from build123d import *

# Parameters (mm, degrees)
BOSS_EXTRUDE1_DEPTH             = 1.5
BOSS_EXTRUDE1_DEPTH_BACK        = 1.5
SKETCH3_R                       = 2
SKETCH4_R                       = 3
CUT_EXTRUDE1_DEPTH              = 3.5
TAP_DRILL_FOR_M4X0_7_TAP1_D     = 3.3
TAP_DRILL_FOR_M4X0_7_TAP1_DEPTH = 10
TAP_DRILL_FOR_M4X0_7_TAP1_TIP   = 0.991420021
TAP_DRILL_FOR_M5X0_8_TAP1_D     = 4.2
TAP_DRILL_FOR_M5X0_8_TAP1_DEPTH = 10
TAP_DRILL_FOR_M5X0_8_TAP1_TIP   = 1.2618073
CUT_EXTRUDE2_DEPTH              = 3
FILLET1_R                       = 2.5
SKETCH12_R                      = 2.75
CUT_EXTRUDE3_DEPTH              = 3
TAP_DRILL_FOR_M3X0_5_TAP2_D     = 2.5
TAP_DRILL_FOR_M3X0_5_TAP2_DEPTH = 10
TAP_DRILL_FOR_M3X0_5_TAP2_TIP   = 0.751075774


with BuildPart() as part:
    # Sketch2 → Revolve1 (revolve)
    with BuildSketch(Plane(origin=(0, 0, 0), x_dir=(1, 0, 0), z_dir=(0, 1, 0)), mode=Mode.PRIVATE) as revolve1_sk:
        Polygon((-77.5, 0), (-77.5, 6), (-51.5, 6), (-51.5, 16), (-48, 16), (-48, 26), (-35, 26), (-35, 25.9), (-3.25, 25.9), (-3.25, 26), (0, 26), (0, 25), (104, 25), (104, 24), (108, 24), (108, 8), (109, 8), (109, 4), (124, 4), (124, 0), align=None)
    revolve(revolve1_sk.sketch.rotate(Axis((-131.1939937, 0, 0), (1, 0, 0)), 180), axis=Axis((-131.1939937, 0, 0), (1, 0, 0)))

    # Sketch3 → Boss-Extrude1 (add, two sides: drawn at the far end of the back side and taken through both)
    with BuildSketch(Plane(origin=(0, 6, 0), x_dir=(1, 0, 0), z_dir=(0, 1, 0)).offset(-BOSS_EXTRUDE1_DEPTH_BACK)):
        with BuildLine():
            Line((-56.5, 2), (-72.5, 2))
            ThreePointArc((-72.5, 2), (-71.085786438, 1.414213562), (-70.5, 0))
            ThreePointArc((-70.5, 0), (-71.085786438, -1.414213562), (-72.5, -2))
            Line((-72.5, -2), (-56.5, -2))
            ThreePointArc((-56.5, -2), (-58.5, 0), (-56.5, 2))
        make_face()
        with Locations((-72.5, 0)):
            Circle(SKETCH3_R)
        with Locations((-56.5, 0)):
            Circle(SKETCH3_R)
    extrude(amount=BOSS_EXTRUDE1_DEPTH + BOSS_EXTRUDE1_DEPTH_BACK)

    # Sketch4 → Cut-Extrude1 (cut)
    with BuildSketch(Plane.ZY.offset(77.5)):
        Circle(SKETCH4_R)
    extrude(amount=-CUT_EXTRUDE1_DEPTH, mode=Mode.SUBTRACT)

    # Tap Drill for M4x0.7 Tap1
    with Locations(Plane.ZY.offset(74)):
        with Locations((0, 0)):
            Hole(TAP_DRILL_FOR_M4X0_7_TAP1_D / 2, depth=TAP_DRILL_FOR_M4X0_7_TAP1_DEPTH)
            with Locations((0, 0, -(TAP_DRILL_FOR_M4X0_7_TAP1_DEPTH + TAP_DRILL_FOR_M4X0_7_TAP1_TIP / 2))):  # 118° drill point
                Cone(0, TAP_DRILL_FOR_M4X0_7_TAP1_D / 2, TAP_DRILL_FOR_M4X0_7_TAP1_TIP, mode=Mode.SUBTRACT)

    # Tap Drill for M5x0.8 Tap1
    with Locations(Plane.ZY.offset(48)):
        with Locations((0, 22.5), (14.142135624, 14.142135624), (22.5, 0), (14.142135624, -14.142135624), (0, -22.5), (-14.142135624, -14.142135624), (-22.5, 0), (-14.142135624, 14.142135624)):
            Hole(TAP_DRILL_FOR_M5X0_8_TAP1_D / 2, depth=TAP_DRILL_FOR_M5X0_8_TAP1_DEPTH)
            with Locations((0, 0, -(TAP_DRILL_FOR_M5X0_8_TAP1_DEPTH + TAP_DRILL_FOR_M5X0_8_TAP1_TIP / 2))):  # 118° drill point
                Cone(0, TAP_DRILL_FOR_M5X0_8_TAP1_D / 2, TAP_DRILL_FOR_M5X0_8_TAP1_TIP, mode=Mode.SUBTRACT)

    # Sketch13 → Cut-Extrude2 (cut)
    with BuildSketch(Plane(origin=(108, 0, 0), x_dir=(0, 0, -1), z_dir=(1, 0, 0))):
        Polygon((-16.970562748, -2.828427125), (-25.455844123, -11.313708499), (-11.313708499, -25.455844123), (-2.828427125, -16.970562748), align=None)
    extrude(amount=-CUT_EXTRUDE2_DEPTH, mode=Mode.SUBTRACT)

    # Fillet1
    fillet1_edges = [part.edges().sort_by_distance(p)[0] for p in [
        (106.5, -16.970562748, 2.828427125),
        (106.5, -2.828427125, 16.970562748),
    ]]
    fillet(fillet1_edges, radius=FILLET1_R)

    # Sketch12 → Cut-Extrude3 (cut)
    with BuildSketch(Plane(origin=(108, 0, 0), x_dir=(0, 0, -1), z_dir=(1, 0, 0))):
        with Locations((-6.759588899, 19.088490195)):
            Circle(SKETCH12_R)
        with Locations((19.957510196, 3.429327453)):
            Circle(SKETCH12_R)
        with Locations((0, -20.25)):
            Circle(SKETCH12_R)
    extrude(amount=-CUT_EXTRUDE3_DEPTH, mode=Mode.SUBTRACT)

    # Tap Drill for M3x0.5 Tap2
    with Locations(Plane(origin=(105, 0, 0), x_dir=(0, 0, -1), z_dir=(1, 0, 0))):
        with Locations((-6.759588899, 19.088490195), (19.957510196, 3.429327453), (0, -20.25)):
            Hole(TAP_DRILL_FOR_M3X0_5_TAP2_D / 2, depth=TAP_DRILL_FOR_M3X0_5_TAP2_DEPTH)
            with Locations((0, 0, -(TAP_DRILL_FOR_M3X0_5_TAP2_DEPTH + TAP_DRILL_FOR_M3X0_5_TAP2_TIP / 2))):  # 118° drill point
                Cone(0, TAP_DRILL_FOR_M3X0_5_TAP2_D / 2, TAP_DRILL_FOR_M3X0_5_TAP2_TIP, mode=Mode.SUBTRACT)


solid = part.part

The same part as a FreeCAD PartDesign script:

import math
import FreeCAD as App
import Part
import Sketcher
Q = App.Units.Quantity


def edges_at(feature, points):
    """Names of the edges that pass closest to the given points."""
    edges = feature.Shape.Edges
    near = lambda p: min(range(len(edges)), key=lambda i: edges[i].distToShape(Part.Vertex(*p))[0])
    return sorted({f"Edge{near(p) + 1}" for p in points})

doc = App.newDocument("Part")
body = doc.addObject("PartDesign::Body", "Body")

sketch1 = body.newObject("Sketcher::SketchObject", "Sketch")
sketch1.AttachmentSupport = (doc.getObject("XZ_Plane"), [""])
sketch1.MapMode = "FlatFace"
sketch1.addGeometry([
    Part.LineSegment(App.Vector(-77.5, -6, 0), App.Vector(-77.5, 0, 0)),
    Part.LineSegment(App.Vector(-77.5, 0, 0), App.Vector(124, 0, 0)),
    Part.LineSegment(App.Vector(124, 0, 0), App.Vector(124, -4, 0)),
    Part.LineSegment(App.Vector(124, -4, 0), App.Vector(109, -4, 0)),
    Part.LineSegment(App.Vector(109, -4, 0), App.Vector(109, -8, 0)),
    Part.LineSegment(App.Vector(109, -8, 0), App.Vector(108, -8, 0)),
    Part.LineSegment(App.Vector(108, -8, 0), App.Vector(108, -24, 0)),
    Part.LineSegment(App.Vector(108, -24, 0), App.Vector(104, -24, 0)),
    Part.LineSegment(App.Vector(104, -24, 0), App.Vector(104, -25, 0)),
    Part.LineSegment(App.Vector(104, -25, 0), App.Vector(0, -25, 0)),
    Part.LineSegment(App.Vector(0, -25, 0), App.Vector(0, -26, 0)),
    Part.LineSegment(App.Vector(0, -26, 0), App.Vector(-3.25, -26, 0)),
    Part.LineSegment(App.Vector(-3.25, -26, 0), App.Vector(-3.25, -25.9, 0)),
    Part.LineSegment(App.Vector(-3.25, -25.9, 0), App.Vector(-35, -25.9, 0)),
    Part.LineSegment(App.Vector(-35, -25.9, 0), App.Vector(-35, -26, 0)),
    Part.LineSegment(App.Vector(-35, -26, 0), App.Vector(-48, -26, 0)),
    Part.LineSegment(App.Vector(-48, -26, 0), App.Vector(-48, -16, 0)),
    Part.LineSegment(App.Vector(-48, -16, 0), App.Vector(-51.5, -16, 0)),
    Part.LineSegment(App.Vector(-51.5, -16, 0), App.Vector(-51.5, -6, 0)),
    Part.LineSegment(App.Vector(-51.5, -6, 0), App.Vector(-77.5, -6, 0)),
], False)
sketch1.addConstraint([
    Sketcher.Constraint("Coincident", 0, 2, 1, 1),
    Sketcher.Constraint("Coincident", 1, 2, 2, 1),
    Sketcher.Constraint("Coincident", 2, 2, 3, 1),
    Sketcher.Constraint("Coincident", 3, 2, 4, 1),
    Sketcher.Constraint("Coincident", 4, 2, 5, 1),
    Sketcher.Constraint("Coincident", 5, 2, 6, 1),
    Sketcher.Constraint("Coincident", 6, 2, 7, 1),
    Sketcher.Constraint("Coincident", 7, 2, 8, 1),
    Sketcher.Constraint("Coincident", 8, 2, 9, 1),
    Sketcher.Constraint("Coincident", 9, 2, 10, 1),
    Sketcher.Constraint("Coincident", 10, 2, 11, 1),
    Sketcher.Constraint("Coincident", 11, 2, 12, 1),
    Sketcher.Constraint("Coincident", 12, 2, 13, 1),
    Sketcher.Constraint("Coincident", 13, 2, 14, 1),
    Sketcher.Constraint("Coincident", 14, 2, 15, 1),
    Sketcher.Constraint("Coincident", 15, 2, 16, 1),
    Sketcher.Constraint("Coincident", 16, 2, 17, 1),
    Sketcher.Constraint("Coincident", 17, 2, 18, 1),
    Sketcher.Constraint("Coincident", 18, 2, 19, 1),
    Sketcher.Constraint("Coincident", 19, 2, 0, 1),
    Sketcher.Constraint("Vertical", 0),
    Sketcher.Constraint("Horizontal", 1),
    Sketcher.Constraint("Vertical", 2),
    Sketcher.Constraint("Horizontal", 3),
    Sketcher.Constraint("Vertical", 4),
    Sketcher.Constraint("Horizontal", 5),
    Sketcher.Constraint("Vertical", 6),
    Sketcher.Constraint("Horizontal", 7),
    Sketcher.Constraint("Vertical", 8),
    Sketcher.Constraint("Horizontal", 9),
    Sketcher.Constraint("Vertical", 10),
    Sketcher.Constraint("Horizontal", 11),
    Sketcher.Constraint("Vertical", 12),
    Sketcher.Constraint("Horizontal", 13),
    Sketcher.Constraint("Vertical", 14),
    Sketcher.Constraint("Horizontal", 15),
    Sketcher.Constraint("Vertical", 16),
    Sketcher.Constraint("Horizontal", 17),
    Sketcher.Constraint("Vertical", 18),
    Sketcher.Constraint("Horizontal", 19),
    Sketcher.Constraint("PointOnObject", 0, 2, -1),
    Sketcher.Constraint("PointOnObject", 9, 2, -2),
    Sketcher.Constraint("Horizontal", 11, 2, 14, 2),
    Sketcher.Constraint("Equal", 7, 2),
    Sketcher.Constraint("Equal", 2, 4),
    Sketcher.Constraint("Equal", 5, 8),
    Sketcher.Constraint("Equal", 8, 10),
    Sketcher.Constraint("Equal", 16, 18),
    Sketcher.Constraint("DistanceX", 3, 2, 3, 1, 15.0),
    Sketcher.Constraint("DistanceX", 5, 2, 5, 1, 1.0),
    Sketcher.Constraint("DistanceX", 7, 2, 7, 1, 4.0),
    Sketcher.Constraint("DistanceX", 9, 2, 9, 1, 104.0),
    Sketcher.Constraint("DistanceX", 15, 2, 15, 1, 13.0),
    Sketcher.Constraint("DistanceX", 19, 2, 19, 1, 26.0),
    Sketcher.Constraint("DistanceY", 0, 1, 0, 2, 6.0),
    Sketcher.Constraint("DistanceY", 6, 2, 6, 1, 16.0),
    Sketcher.Constraint("DistanceX", 1, 1, 1, 2, 201.5),
    Sketcher.Constraint("DistanceX", 17, 2, 17, 1, 3.5),
    Sketcher.Constraint("DistanceY", 12, 1, 12, 2, 0.1),
    Sketcher.Constraint("DistanceX", 11, 2, 11, 1, 3.25),
])
revolution = body.newObject("PartDesign::Revolution", "Revolution")
revolution.Profile = sketch1
revolution.ReferenceAxis = (sketch1, ["H_Axis"])
revolution.Angle = 360

sketch2 = body.newObject("Sketcher::SketchObject", "Sketch001")
sketch2.AttachmentSupport = (doc.getObject("XZ_Plane"), [""])
sketch2.MapMode = "FlatFace"
sketch2.AttachmentOffset = App.Placement(App.Vector(0, 0, -6), App.Rotation())
sketch2.addGeometry([
    Part.LineSegment(App.Vector(-56.5, -2, 0), App.Vector(-72.5, -2, 0)),
    Part.ArcOfCircle(Part.Circle(App.Vector(-72.5, 0, 0), App.Vector(0, 0, 1), 2), math.radians(90), math.radians(270)),
    Part.LineSegment(App.Vector(-72.5, 2, 0), App.Vector(-56.5, 2, 0)),
    Part.ArcOfCircle(Part.Circle(App.Vector(-56.5, 0, 0), App.Vector(0, 0, 1), 2), math.radians(-90), math.radians(90)),
], False)
sketch2.addConstraint([
    Sketcher.Constraint("Tangent", 0, 2, 1, 2),
    Sketcher.Constraint("Tangent", 1, 1, 2, 1),
    Sketcher.Constraint("Tangent", 2, 2, 3, 2),
    Sketcher.Constraint("Tangent", 3, 1, 0, 1),
    Sketcher.Constraint("Horizontal", 0),
    Sketcher.Constraint("Horizontal", 2),
    Sketcher.Constraint("PointOnObject", 1, 3, -1),
    Sketcher.Constraint("Radius", 1, 2.0),
    Sketcher.Constraint("DistanceX", 0, 2, 0, 1, 16.0),
    Sketcher.Constraint("DistanceX", 1, 3, -1, 1, 72.5),
])
pad1 = body.newObject("PartDesign::Pad", "Pad")
pad1.Profile = sketch2
pad1.Type = "TwoLengths"
pad1.Length = 1.5
pad1.Length2 = 1.5
pad1.Reversed = True

sketch3 = body.newObject("Sketcher::SketchObject", "Sketch002")
sketch3.AttachmentSupport = (doc.getObject("YZ_Plane"), [""])
sketch3.MapMode = "FlatFace"
sketch3.AttachmentOffset = App.Placement(App.Vector(0, 0, -77.5), App.Rotation())
sketch3.addGeometry(Part.Circle(App.Vector(0, 0, 0), App.Vector(0, 0, 1), 3), False)
sketch3.addConstraint([
    Sketcher.Constraint("Coincident", 0, 3, -1, 1),
    Sketcher.Constraint("Diameter", 0, 6.0),
])
pocket1 = body.newObject("PartDesign::Pocket", "Pocket")
pocket1.Profile = sketch3
pocket1.Length = 3.5
pocket1.Reversed = True

sketch4 = body.newObject("Sketcher::SketchObject", "Sketch003")
sketch4.AttachmentSupport = (doc.getObject("YZ_Plane"), [""])
sketch4.MapMode = "FlatFace"
sketch4.AttachmentOffset = App.Placement(App.Vector(0, 0, -74), App.Rotation())
sketch4.addGeometry(Part.Circle(App.Vector(0, 0, 0), App.Vector(0, 0, 1), 1.65), False)
sketch4.addConstraint([
    Sketcher.Constraint("Coincident", 0, 3, -1, 1),
    Sketcher.Constraint("Diameter", 0, 3.3),
])
doc.recompute()
hole = body.newObject("PartDesign::Hole", "Hole")
hole.Profile = sketch4
hole.ThreadType = "None"
hole.Diameter = 3.3
hole.DepthType = "Dimension"
hole.Depth = 10
hole.DrillPoint = "Angled"
hole.DrillPointAngle = 118
hole.Reversed = True

sketch5 = body.newObject("Sketcher::SketchObject", "Sketch004")
sketch5.AttachmentSupport = (doc.getObject("YZ_Plane"), [""])
sketch5.MapMode = "FlatFace"
sketch5.AttachmentOffset = App.Placement(App.Vector(0, 0, -48), App.Rotation())
sketch5.addGeometry([
    Part.Circle(App.Vector(22.5, 0, 0), App.Vector(0, 0, 1), 2.1),
    Part.Circle(App.Vector(14.142136, 14.142136, 0), App.Vector(0, 0, 1), 2.1),
    Part.Circle(App.Vector(0, 22.5, 0), App.Vector(0, 0, 1), 2.1),
    Part.Circle(App.Vector(-14.142136, 14.142136, 0), App.Vector(0, 0, 1), 2.1),
    Part.Circle(App.Vector(-22.5, 0, 0), App.Vector(0, 0, 1), 2.1),
    Part.Circle(App.Vector(-14.142136, -14.142136, 0), App.Vector(0, 0, 1), 2.1),
    Part.Circle(App.Vector(0, -22.5, 0), App.Vector(0, 0, 1), 2.1),
    Part.Circle(App.Vector(14.142136, -14.142136, 0), App.Vector(0, 0, 1), 2.1),
], False)
sketch5.addConstraint([
    Sketcher.Constraint("Equal", 0, 1),
    Sketcher.Constraint("Equal", 1, 2),
    Sketcher.Constraint("Equal", 2, 3),
    Sketcher.Constraint("Equal", 3, 4),
    Sketcher.Constraint("Equal", 4, 5),
    Sketcher.Constraint("Equal", 5, 6),
    Sketcher.Constraint("Equal", 6, 7),
    Sketcher.Constraint("Symmetric", 0, 3, 4, 3, -1, 1),
    Sketcher.Constraint("Symmetric", 1, 3, 5, 3, -1, 1),
    Sketcher.Constraint("Symmetric", 2, 3, 6, 3, -1, 1),
    Sketcher.Constraint("Symmetric", 3, 3, 7, 3, -1, 1),
    Sketcher.Constraint("Symmetric", 1, 3, 3, 3, -2),
    Sketcher.Constraint("PointOnObject", 0, 3, -1),
    Sketcher.Constraint("PointOnObject", 2, 3, -2),
    Sketcher.Constraint("Diameter", 0, 4.2),
    Sketcher.Constraint("DistanceX", 4, 3, 0, 3, 45.0),
    Sketcher.Constraint("DistanceY", -1, 1, 2, 3, 22.5),
    Sketcher.Constraint("DistanceX", 3, 3, 1, 3, 28.284271),
    Sketcher.Constraint("DistanceY", 5, 3, 3, 3, 28.284271),
])
doc.recompute()
hole2 = body.newObject("PartDesign::Hole", "Hole001")
hole2.Profile = sketch5
hole2.ThreadType = "None"
hole2.Diameter = 4.2
hole2.DepthType = "Dimension"
hole2.Depth = 10
hole2.DrillPoint = "Angled"
hole2.DrillPointAngle = 118
hole2.Reversed = True

sketch6 = body.newObject("Sketcher::SketchObject", "Sketch005")
sketch6.AttachmentSupport = (doc.getObject("YZ_Plane"), [""])
sketch6.MapMode = "FlatFace"
sketch6.AttachmentOffset = App.Placement(App.Vector(0, 0, 108), App.Rotation())
sketch6.addGeometry([
    Part.LineSegment(App.Vector(-2.828427, 16.970563, 0), App.Vector(-11.313708, 25.455844, 0)),
    Part.LineSegment(App.Vector(-11.313708, 25.455844, 0), App.Vector(-25.455844, 11.313708, 0)),
    Part.LineSegment(App.Vector(-25.455844, 11.313708, 0), App.Vector(-16.970563, 2.828427, 0)),
    Part.LineSegment(App.Vector(-16.970563, 2.828427, 0), App.Vector(-2.828427, 16.970563, 0)),
], False)
sketch6.addConstraint([
    Sketcher.Constraint("Coincident", 0, 2, 1, 1),
    Sketcher.Constraint("Coincident", 1, 2, 2, 1),
    Sketcher.Constraint("Coincident", 2, 2, 3, 1),
    Sketcher.Constraint("Coincident", 3, 2, 0, 1),
    Sketcher.Constraint("Perpendicular", 0, 1),
    Sketcher.Constraint("Perpendicular", 1, 2),
    Sketcher.Constraint("Perpendicular", 2, 3),
    Sketcher.Constraint("Angle", 0, Q("135 deg")),
    Sketcher.Constraint("Distance", 0, 12.0),
    Sketcher.Constraint("Distance", 1, 20.0),
    Sketcher.Constraint("DistanceX", 0, 2, -1, 1, 11.313708),
    Sketcher.Constraint("DistanceY", -1, 1, 1, 2, 11.313708),
])
pocket2 = body.newObject("PartDesign::Pocket", "Pocket001")
pocket2.Profile = sketch6
pocket2.Length = 3
doc.recompute()

fillet = body.newObject("PartDesign::Fillet", "Fillet")
fillet.Base = (pocket2, edges_at(pocket2, [(106.5, -16.971, 2.828), (106.5, -2.828, 16.971)]))
fillet.Radius = 2.5

sketch7 = body.newObject("Sketcher::SketchObject", "Sketch006")
sketch7.AttachmentSupport = (doc.getObject("YZ_Plane"), [""])
sketch7.MapMode = "FlatFace"
sketch7.AttachmentOffset = App.Placement(App.Vector(0, 0, 108), App.Rotation())
sketch7.addGeometry([
    Part.Circle(App.Vector(19.08849, 6.759589, 0), App.Vector(0, 0, 1), 2.75),
    Part.Circle(App.Vector(3.429327, -19.95751, 0), App.Vector(0, 0, 1), 2.75),
    Part.Circle(App.Vector(-20.25, 0, 0), App.Vector(0, 0, 1), 2.75),
], False)
sketch7.addConstraint([
    Sketcher.Constraint("Equal", 0, 1),
    Sketcher.Constraint("Equal", 1, 2),
    Sketcher.Constraint("PointOnObject", 2, 3, -1),
    Sketcher.Constraint("Diameter", 0, 5.5),
    Sketcher.Constraint("DistanceX", 2, 3, -1, 1, 20.25),
    Sketcher.Constraint("DistanceY", 1, 3, 0, 3, 26.717099),
    Sketcher.Constraint("DistanceX", -1, 1, 0, 3, 19.08849),
    Sketcher.Constraint("DistanceY", -1, 1, 0, 3, 6.759589),
    Sketcher.Constraint("DistanceX", -1, 1, 1, 3, 3.429327),
])
pocket3 = body.newObject("PartDesign::Pocket", "Pocket002")
pocket3.Profile = sketch7
pocket3.Length = 3

sketch8 = body.newObject("Sketcher::SketchObject", "Sketch007")
sketch8.AttachmentSupport = (doc.getObject("YZ_Plane"), [""])
sketch8.MapMode = "FlatFace"
sketch8.AttachmentOffset = App.Placement(App.Vector(0, 0, 105), App.Rotation())
sketch8.addGeometry([
    Part.Circle(App.Vector(19.08849, 6.759589, 0), App.Vector(0, 0, 1), 1.25),
    Part.Circle(App.Vector(3.429327, -19.95751, 0), App.Vector(0, 0, 1), 1.25),
    Part.Circle(App.Vector(-20.25, 0, 0), App.Vector(0, 0, 1), 1.25),
], False)
sketch8.addConstraint([
    Sketcher.Constraint("Equal", 0, 1),
    Sketcher.Constraint("Equal", 1, 2),
    Sketcher.Constraint("PointOnObject", 2, 3, -1),
    Sketcher.Constraint("Diameter", 0, 2.5),
    Sketcher.Constraint("DistanceX", 2, 3, -1, 1, 20.25),
    Sketcher.Constraint("DistanceY", 1, 3, 0, 3, 26.717099),
    Sketcher.Constraint("DistanceX", -1, 1, 0, 3, 19.08849),
    Sketcher.Constraint("DistanceY", -1, 1, 0, 3, 6.759589),
    Sketcher.Constraint("DistanceX", -1, 1, 1, 3, 3.429327),
])
doc.recompute()
hole3 = body.newObject("PartDesign::Hole", "Hole002")
hole3.Profile = sketch8
hole3.ThreadType = "None"
hole3.Diameter = 2.5
hole3.DepthType = "Dimension"
hole3.Depth = 10
hole3.DrillPoint = "Angled"
hole3.DrillPointAngle = 118

doc.recompute()
